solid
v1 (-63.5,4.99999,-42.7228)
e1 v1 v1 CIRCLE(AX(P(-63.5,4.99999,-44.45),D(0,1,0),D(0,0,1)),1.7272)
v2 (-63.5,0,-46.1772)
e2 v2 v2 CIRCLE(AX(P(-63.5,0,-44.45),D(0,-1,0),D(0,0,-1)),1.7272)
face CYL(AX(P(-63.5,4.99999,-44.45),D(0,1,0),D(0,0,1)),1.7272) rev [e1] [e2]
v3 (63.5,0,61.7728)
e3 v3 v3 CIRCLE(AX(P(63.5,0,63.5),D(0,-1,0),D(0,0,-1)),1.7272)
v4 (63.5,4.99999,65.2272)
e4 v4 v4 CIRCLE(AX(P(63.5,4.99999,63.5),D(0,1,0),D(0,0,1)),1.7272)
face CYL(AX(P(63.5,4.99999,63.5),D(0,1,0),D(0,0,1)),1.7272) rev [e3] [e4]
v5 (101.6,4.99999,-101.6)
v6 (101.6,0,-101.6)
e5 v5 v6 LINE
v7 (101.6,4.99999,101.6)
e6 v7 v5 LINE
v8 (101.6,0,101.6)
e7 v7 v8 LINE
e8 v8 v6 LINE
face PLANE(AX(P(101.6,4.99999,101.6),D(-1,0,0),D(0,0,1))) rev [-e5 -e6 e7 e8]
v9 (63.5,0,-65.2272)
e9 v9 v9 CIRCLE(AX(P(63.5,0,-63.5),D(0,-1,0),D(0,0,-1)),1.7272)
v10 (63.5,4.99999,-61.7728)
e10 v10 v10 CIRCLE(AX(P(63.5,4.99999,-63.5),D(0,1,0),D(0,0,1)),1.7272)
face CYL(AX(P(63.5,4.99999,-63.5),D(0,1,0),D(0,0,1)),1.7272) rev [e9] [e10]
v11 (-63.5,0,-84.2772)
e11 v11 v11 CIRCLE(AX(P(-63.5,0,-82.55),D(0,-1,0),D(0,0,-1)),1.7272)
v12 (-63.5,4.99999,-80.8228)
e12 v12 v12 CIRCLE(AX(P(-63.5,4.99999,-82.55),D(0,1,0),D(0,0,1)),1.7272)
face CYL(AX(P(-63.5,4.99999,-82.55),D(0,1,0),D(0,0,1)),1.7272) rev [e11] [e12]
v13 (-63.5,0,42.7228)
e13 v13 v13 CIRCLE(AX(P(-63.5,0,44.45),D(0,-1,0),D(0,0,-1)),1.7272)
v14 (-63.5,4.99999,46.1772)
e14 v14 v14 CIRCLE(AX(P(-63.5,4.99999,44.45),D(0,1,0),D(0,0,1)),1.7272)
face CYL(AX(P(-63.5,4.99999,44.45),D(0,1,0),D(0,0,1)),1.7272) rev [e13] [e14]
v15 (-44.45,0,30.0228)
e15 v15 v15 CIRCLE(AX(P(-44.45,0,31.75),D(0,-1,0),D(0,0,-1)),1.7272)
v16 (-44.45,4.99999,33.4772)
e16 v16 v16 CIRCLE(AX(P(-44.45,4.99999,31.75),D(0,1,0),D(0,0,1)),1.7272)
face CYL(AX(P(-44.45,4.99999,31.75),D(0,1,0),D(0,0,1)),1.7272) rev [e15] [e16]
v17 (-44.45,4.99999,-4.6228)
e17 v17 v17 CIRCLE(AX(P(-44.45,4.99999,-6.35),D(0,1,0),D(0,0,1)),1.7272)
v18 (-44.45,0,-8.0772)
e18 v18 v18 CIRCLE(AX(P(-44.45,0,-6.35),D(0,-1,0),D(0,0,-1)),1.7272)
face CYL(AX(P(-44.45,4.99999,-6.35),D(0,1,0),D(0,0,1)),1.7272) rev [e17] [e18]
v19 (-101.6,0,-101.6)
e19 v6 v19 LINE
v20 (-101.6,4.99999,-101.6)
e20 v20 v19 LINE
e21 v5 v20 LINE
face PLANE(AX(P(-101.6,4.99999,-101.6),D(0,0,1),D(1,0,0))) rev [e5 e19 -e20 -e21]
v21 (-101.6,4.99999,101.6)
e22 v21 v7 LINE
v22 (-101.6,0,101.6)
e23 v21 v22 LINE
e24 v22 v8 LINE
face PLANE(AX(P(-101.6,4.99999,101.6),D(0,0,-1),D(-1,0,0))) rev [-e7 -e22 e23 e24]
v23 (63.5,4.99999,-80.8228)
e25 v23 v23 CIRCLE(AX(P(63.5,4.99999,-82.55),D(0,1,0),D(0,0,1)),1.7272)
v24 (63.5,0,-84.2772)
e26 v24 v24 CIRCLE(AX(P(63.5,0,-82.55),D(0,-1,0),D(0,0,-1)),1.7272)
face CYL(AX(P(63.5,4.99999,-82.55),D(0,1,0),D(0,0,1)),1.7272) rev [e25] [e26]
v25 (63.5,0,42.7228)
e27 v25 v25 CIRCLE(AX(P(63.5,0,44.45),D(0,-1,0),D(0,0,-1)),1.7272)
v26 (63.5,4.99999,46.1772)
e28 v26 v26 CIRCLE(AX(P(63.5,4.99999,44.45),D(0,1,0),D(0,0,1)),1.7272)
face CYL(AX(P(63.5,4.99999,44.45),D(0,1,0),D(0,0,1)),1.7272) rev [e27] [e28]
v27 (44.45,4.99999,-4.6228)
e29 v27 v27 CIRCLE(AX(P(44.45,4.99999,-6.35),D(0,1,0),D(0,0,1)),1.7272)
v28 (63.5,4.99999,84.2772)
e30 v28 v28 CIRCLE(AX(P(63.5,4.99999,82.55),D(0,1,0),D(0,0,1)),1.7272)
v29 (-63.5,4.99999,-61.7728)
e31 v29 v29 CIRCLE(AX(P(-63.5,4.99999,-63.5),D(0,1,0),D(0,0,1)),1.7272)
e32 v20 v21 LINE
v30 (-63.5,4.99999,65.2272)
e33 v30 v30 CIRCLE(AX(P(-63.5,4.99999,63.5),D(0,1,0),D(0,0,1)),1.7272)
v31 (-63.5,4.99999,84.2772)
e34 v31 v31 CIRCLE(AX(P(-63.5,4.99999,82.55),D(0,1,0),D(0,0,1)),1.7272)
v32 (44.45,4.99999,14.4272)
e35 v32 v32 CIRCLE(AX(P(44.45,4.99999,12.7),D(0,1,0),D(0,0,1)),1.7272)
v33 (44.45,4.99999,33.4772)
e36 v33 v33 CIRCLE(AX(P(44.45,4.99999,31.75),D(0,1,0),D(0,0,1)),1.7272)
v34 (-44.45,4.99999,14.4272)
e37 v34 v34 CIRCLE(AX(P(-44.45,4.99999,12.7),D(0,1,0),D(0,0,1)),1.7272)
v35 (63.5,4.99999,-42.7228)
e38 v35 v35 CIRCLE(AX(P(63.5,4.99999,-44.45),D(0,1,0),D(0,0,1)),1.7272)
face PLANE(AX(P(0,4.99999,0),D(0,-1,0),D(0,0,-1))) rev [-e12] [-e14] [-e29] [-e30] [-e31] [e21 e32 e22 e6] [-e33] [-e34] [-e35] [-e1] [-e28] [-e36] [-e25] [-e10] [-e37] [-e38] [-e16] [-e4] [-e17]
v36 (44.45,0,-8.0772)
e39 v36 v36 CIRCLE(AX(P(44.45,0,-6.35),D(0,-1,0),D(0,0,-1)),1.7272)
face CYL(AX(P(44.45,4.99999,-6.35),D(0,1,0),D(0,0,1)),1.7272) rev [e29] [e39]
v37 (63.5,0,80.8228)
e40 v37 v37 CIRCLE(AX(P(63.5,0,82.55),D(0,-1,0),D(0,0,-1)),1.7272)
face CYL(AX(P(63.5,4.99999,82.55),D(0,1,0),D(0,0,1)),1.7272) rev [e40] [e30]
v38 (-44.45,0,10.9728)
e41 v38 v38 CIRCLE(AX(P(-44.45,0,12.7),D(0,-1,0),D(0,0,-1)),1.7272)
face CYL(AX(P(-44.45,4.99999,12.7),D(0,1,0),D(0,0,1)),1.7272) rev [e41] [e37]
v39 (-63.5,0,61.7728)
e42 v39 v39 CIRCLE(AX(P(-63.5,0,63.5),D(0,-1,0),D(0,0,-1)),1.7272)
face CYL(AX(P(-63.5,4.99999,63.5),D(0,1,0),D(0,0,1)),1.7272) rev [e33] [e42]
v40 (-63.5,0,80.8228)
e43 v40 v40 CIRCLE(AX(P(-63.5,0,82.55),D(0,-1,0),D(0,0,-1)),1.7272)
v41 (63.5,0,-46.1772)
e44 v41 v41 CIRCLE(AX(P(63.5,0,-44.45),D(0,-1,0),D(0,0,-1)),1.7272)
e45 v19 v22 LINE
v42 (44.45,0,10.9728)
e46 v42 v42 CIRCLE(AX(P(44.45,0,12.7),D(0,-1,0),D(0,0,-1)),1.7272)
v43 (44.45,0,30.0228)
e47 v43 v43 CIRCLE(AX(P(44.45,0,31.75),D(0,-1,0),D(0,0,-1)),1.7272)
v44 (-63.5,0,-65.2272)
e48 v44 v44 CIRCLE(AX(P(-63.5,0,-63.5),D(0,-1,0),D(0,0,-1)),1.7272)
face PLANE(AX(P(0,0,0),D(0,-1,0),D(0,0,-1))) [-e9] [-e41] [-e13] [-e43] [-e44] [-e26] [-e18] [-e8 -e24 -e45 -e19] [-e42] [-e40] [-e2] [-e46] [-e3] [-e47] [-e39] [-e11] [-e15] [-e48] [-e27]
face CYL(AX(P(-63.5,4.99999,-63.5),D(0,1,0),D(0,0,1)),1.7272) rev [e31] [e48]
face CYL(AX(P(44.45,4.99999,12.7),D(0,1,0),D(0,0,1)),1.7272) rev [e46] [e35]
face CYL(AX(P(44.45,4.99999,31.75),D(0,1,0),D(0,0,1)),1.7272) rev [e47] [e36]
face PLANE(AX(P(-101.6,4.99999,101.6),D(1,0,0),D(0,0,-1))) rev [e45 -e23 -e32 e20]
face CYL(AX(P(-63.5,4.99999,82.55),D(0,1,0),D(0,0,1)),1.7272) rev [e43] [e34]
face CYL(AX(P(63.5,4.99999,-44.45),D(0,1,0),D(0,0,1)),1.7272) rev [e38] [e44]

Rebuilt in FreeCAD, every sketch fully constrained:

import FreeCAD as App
import Part
import Sketcher

V = App.Vector
Q = App.Units.Quantity

doc = App.newDocument("Part")
body = doc.addObject("PartDesign::Body", "Body")

# Sketch on XZ plane
sketch1 = body.newObject("Sketcher::SketchObject", "Sketch")
sketch1.AttachmentSupport = (doc.getObject("XZ_Plane"), [""])
sketch1.MapMode = "FlatFace"
sketch1.addGeometry([
    Part.LineSegment(V(-102, -102, 0), V(-102, 102, 0)),
    Part.LineSegment(V(-102, 102, 0), V(102, 102, 0)),
    Part.LineSegment(V(102, 102, 0), V(102, -102, 0)),
    Part.LineSegment(V(102, -102, 0), V(-102, -102, 0)),
], False)
sketch1.addConstraint([
    Sketcher.Constraint("Coincident", 0, 2, 1, 1),
    Sketcher.Constraint("Coincident", 1, 2, 2, 1),
    Sketcher.Constraint("Coincident", 2, 2, 3, 1),
    Sketcher.Constraint("Coincident", 3, 2, 0, 1),
    Sketcher.Constraint("Vertical", 0),
    Sketcher.Constraint("Horizontal", 1),
    Sketcher.Constraint("Vertical", 2),
    Sketcher.Constraint("Horizontal", 3),
    Sketcher.Constraint("Symmetric", 0, 2, 2, 2, -1, 1),
    Sketcher.Constraint("Equal", 3, 0),
    Sketcher.Constraint("DistanceX", 1, 1, 1, 2, Q("8 in")),
])
pad1 = body.newObject("PartDesign::Pad", "Pad")
pad1.Profile = sketch1
pad1.Length = 4.99999
pad1.Reversed = True

# Sketch on XZ plane
sketch2 = body.newObject("Sketcher::SketchObject", "Sketch001")
sketch2.AttachmentSupport = (doc.getObject("XZ_Plane"), [""])
sketch2.MapMode = "FlatFace"
sketch2.AttachmentOffset = App.Placement(V(0, 0, -4.99999), App.Rotation())
sketch2.addGeometry([
    Part.Circle(V(-44.5, -6.3, 0), V(0, 0, 1), 1.7),  # 0
    Part.Circle(V(-44.5, 12.7, 0), V(0, 0, 1), 1.7),  # 1
    Part.Circle(V(-44.5, 31.8, 0), V(0, 0, 1), 1.7),  # 2
    Part.Circle(V(44.5, 31.8, 0), V(0, 0, 1), 1.7),  # 3
    Part.Circle(V(44.5, 12.7, 0), V(0, 0, 1), 1.7),  # 4
    Part.Circle(V(44.5, -6.3, 0), V(0, 0, 1), 1.7),  # 5
    Part.Circle(V(-63.5, 44.5, 0), V(0, 0, 1), 1.7),  # 6
    Part.Circle(V(-63.5, 63.5, 0), V(0, 0, 1), 1.7),  # 7
    Part.Circle(V(-63.5, 82.5, 0), V(0, 0, 1), 1.7),  # 8
    Part.Circle(V(63.5, 44.5, 0), V(0, 0, 1), 1.7),  # 9
    Part.Circle(V(63.5, 82.5, 0), V(0, 0, 1), 1.7),  # 10
    Part.Circle(V(63.5, 63.5, 0), V(0, 0, 1), 1.7),  # 11
    Part.Circle(V(63.5, -82.5, 0), V(0, 0, 1), 1.7),  # 12
    Part.Circle(V(63.5, -63.5, 0), V(0, 0, 1), 1.7),  # 13
    Part.Circle(V(63.5, -44.5, 0), V(0, 0, 1), 1.7),  # 14
    Part.Circle(V(-63.5, -44.5, 0), V(0, 0, 1), 1.7),  # 15
    Part.Circle(V(-63.5, -63.5, 0), V(0, 0, 1), 1.7),  # 16
    Part.Circle(V(-63.5, -82.5, 0), V(0, 0, 1), 1.7),  # 17
], False)
sketch2.addConstraint([
    Sketcher.Constraint("Equal", 0, 1),
    Sketcher.Constraint("Equal", 1, 2),
    Sketcher.Constraint("Equal", 2, 3),
    Sketcher.Constraint("Equal", 3, 4),
    Sketcher.Constraint("Equal", 4, 5),
    Sketcher.Constraint("Equal", 5, 6),
    Sketcher.Constraint("Equal", 6, 7),
    Sketcher.Constraint("Equal", 7, 8),
    Sketcher.Constraint("Equal", 8, 9),
    Sketcher.Constraint("Equal", 9, 10),
    Sketcher.Constraint("Equal", 10, 11),
    Sketcher.Constraint("Equal", 11, 12),
    Sketcher.Constraint("Equal", 12, 13),
    Sketcher.Constraint("Equal", 13, 14),
    Sketcher.Constraint("Equal", 14, 15),
    Sketcher.Constraint("Equal", 15, 16),
    Sketcher.Constraint("Equal", 16, 17),
    Sketcher.Constraint("Symmetric", 8, 3, 12, 3, -1, 1),
    Sketcher.Constraint("Symmetric", 7, 3, 13, 3, -1, 1),
    Sketcher.Constraint("Symmetric", 6, 3, 14, 3, -1, 1),
    Sketcher.Constraint("Symmetric", 9, 3, 15, 3, -1, 1),
    Sketcher.Constraint("Symmetric", 11, 3, 16, 3, -1, 1),
    Sketcher.Constraint("Symmetric", 10, 3, 17, 3, -1, 1),
    Sketcher.Constraint("Symmetric", 2, 3, 3, 3, -2),
    Sketcher.Constraint("Symmetric", 1, 3, 4, 3, -2),
    Sketcher.Constraint("Symmetric", 0, 3, 5, 3, -2),
    Sketcher.Constraint("Symmetric", 6, 3, 9, 3, -2),
    Sketcher.Constraint("Symmetric", 8, 3, 10, 3, -2),
    Sketcher.Constraint("Symmetric", 7, 3, 11, 3, -2),
    Sketcher.Constraint("Vertical", 0, 3, 1, 3),
    Sketcher.Constraint("Vertical", 1, 3, 2, 3),
    Sketcher.Constraint("Vertical", 6, 3, 7, 3),
    Sketcher.Constraint("Vertical", 7, 3, 8, 3),
    Sketcher.Constraint("Diameter", 0, Q("0.136 in")),
    Sketcher.Constraint("DistanceY", 0, 3, 6, 3, Q("2 in")),
    Sketcher.Constraint("DistanceY", 1, 3, 7, 3, Q("2 in")),
    Sketcher.Constraint("DistanceY", 2, 3, 8, 3, Q("2 in")),
    Sketcher.Constraint("DistanceY", 12, 3, 5, 3, Q("3 in")),
    Sketcher.Constraint("DistanceY", 13, 3, 4, 3, Q("3 in")),
    Sketcher.Constraint("DistanceX", 6, 3, -1, 1, Q("2.5 in")),
    Sketcher.Constraint("DistanceY", 0, 3, 2, 3, Q("1.5 in")),
    Sketcher.Constraint("DistanceX", 2, 3, 3, 3, Q("3.5 in")),
])
doc.recompute()
hole = body.newObject("PartDesign::Hole", "Hole")
hole.Profile = sketch2
hole.ThreadType = "None"
hole.Diameter = Q("0.136 in")
hole.DepthType = "ThroughAll"
hole.Reversed = True

doc.recompute()
